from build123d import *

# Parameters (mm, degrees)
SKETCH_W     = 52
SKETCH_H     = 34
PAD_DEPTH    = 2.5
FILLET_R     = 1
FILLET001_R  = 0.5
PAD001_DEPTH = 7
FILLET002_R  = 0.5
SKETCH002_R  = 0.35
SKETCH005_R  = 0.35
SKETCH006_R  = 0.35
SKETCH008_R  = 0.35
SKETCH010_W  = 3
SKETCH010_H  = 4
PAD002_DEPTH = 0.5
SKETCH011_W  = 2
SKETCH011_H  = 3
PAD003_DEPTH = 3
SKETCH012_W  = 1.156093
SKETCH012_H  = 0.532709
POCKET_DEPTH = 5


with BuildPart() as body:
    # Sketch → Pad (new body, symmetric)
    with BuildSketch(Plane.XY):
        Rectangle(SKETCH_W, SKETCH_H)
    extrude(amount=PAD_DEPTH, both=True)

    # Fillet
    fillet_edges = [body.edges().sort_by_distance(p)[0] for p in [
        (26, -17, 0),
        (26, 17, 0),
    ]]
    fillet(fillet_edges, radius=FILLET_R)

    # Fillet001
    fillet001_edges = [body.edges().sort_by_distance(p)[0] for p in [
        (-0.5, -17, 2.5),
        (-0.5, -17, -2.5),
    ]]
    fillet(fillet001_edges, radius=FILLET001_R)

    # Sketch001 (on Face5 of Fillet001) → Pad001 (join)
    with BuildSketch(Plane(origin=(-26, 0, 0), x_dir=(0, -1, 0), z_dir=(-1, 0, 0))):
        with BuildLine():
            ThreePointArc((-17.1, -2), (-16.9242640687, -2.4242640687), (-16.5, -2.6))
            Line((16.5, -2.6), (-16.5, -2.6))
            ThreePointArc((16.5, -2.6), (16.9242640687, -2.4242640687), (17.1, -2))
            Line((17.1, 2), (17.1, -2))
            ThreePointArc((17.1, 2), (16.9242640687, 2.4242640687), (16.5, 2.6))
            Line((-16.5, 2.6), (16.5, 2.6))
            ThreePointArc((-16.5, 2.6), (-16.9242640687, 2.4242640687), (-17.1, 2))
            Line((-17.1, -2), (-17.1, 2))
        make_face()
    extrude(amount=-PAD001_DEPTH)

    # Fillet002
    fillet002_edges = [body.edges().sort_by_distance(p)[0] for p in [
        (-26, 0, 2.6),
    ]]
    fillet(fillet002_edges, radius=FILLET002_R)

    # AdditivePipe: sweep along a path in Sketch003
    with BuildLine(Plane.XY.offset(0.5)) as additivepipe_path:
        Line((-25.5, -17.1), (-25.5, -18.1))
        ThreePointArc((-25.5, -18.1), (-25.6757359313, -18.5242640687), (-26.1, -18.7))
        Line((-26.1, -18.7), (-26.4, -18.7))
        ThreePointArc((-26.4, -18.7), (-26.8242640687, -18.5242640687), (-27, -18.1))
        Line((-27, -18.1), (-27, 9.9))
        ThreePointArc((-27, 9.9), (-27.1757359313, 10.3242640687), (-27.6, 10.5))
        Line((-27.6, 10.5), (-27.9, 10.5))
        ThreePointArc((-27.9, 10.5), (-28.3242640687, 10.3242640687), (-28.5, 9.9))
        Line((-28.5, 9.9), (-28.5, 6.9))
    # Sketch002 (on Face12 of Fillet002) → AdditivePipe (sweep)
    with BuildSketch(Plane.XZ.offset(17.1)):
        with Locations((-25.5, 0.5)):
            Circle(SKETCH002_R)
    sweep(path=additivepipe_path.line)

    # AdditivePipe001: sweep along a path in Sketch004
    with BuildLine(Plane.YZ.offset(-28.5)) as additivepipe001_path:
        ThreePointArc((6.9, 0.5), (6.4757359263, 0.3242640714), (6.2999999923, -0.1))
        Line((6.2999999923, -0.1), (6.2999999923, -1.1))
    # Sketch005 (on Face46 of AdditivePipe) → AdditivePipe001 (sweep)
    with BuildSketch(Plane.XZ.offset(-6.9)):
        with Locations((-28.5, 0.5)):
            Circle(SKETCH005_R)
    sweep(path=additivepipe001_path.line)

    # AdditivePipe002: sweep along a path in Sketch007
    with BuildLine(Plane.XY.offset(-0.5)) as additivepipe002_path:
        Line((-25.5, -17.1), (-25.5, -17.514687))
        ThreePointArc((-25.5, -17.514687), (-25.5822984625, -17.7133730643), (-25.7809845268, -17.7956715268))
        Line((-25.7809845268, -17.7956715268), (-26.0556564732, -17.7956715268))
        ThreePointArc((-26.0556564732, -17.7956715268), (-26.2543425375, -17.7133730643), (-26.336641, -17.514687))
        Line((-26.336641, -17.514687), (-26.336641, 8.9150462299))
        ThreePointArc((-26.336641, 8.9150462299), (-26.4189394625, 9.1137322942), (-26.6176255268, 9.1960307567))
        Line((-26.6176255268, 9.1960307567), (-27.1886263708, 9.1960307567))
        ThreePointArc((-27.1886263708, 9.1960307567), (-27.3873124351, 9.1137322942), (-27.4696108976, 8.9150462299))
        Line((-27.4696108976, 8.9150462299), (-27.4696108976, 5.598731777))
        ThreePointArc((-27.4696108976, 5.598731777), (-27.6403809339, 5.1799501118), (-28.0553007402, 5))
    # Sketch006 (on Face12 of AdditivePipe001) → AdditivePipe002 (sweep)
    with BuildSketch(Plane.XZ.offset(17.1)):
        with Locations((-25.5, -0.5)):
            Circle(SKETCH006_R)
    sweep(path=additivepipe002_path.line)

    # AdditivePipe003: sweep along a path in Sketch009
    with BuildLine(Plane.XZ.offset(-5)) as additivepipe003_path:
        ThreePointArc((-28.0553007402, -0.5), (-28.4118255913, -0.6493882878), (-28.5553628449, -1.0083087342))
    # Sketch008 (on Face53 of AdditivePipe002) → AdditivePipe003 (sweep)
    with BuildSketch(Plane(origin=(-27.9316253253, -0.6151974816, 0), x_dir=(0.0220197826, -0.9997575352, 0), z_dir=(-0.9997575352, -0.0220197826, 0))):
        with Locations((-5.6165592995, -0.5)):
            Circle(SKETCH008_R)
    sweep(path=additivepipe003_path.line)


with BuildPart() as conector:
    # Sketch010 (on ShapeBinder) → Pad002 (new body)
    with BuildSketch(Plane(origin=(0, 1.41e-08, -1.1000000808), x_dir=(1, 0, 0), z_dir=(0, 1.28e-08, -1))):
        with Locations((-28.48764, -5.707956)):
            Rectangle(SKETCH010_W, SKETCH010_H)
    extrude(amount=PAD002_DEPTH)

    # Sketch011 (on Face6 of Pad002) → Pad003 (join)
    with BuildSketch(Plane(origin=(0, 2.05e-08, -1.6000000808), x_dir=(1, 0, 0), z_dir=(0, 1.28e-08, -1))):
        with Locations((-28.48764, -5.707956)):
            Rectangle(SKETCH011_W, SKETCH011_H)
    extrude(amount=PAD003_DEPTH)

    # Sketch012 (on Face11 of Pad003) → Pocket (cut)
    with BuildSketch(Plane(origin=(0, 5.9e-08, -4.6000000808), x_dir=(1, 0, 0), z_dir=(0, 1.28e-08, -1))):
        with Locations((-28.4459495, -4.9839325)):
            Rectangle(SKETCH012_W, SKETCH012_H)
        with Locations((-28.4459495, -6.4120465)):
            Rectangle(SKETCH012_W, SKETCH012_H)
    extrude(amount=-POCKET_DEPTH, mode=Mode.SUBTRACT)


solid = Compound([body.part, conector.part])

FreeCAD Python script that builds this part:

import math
import FreeCAD as App
import Part
import Sketcher

V = App.Vector


def edges_at(feature, points):
    """Names of the edges that pass closest to the given points."""
    edges = feature.Shape.Edges
    near = lambda p: min(range(len(edges)), key=lambda i: edges[i].distToShape(Part.Vertex(*p))[0])
    return sorted({f"Edge{near(p) + 1}" for p in points})


def add_polygon(sketch, points):
    """Adds a closed chain of lines whose ends are joined by coincident constraints."""
    first, n = sketch.GeometryCount, len(points)
    for a, b in zip(points, points[1:] + points[:1]):
        sketch.addGeometry(Part.LineSegment(App.Vector(*a, 0), App.Vector(*b, 0)), False)
    for i in range(n):
        sketch.addConstraint(Sketcher.Constraint("Coincident", first + i, 2, first + (i + 1) % n, 1))

doc = App.newDocument("Part")
params = doc.addObject("Spreadsheet::Sheet", "Params")
for row, (alias, value) in enumerate([
    ("sketch1_width", "52 mm"),
    ("sketch1_height", "34 mm"),
    ("pad1_length", "5 mm"),
    ("fillet_radius", "1 mm"),
    ("fillet2_radius", "0.5 mm"),
    ("sketch2_radius", "0.6 mm"),
    ("sketch2_width", "33 mm"),
    ("sketch2_height", "4 mm"),
    ("pad2_length", "7 mm"),
    ("fillet3_radius", "0.5 mm"),
    ("sketch3_diameter", "0.7 mm"),
    ("sketch4_radius", "0.6 mm"),
    ("sketch4_height", "1 mm"),
    ("sketch4_height2", "28 mm"),
    ("sketch4_height3", "3 mm"),
    ("sketch4_width", "0.3 mm"),
    ("sketch5_diameter", "0.7 mm"),
    ("sketch6_radius", "0.6 mm"),
    ("sketch6_height", "1 mm"),
    ("sketch7_diameter", "0.7 mm"),
    ("sketch9_diameter", "0.7 mm"),
    ("sketch11_width", "3 mm"),
    ("sketch11_height", "4 mm"),
    ("pad3_length", "0.5 mm"),
    ("sketch12_width", "2 mm"),
    ("sketch12_height", "3 mm"),
    ("pad4_length", "3 mm"),
    ("pocket1_length", "5 mm"),
], start=1):
    params.set(f"A{row}", alias)
    params.set(f"B{row}", "=" + value)
    params.setAlias(f"B{row}", alias)

body = doc.addObject("PartDesign::Body", "Body")

# Sketch on XY plane
sketch1 = body.newObject("Sketcher::SketchObject", "Sketch")
sketch1.AttachmentSupport = (doc.getObject("XY_Plane"), [""])
sketch1.MapMode = "FlatFace"
add_polygon(sketch1, [(-26, 17), (-26, -17), (26, -17), (26, 17)])  # lines 0-3
sketch1.addConstraint(Sketcher.Constraint("Vertical", 0))
sketch1.addConstraint(Sketcher.Constraint("Horizontal", 1))
sketch1.addConstraint(Sketcher.Constraint("Vertical", 2))
sketch1.addConstraint(Sketcher.Constraint("Horizontal", 3))
sketch1.addConstraint(Sketcher.Constraint("Symmetric", 0, 2, 2, 2, -1, 1))
sketch1.addConstraint(Sketcher.Constraint("DistanceX", 1, 1, 1, 2, 52.0))
sketch1.addConstraint(Sketcher.Constraint("DistanceY", 0, 2, 0, 1, 34.0))
sketch1.setExpression("Constraints[9]", "Params.sketch1_width")
sketch1.setExpression("Constraints[10]", "Params.sketch1_height")
pad1 = body.newObject("PartDesign::Pad", "Pad")
pad1.Profile = sketch1
pad1.setExpression("Length", "Params.pad1_length")
pad1.Midplane = True
doc.recompute()

fillet = body.newObject("PartDesign::Fillet", "Fillet")
fillet.Base = (pad1, edges_at(pad1, [(26, -17, 0), (26, 17, 0)]))
fillet.setExpression("Radius", "Params.fillet_radius")
doc.recompute()

fillet2 = body.newObject("PartDesign::Fillet", "Fillet001")
fillet2.Base = (fillet, edges_at(fillet, [(-0.5, -17, 2.5), (-0.5, -17, -2.5)]))
fillet2.setExpression("Radius", "Params.fillet2_radius")

# Sketch on YZ plane
sketch2 = body.newObject("Sketcher::SketchObject", "Sketch001")
sketch2.AttachmentSupport = (doc.getObject("YZ_Plane"), [""])
sketch2.MapMode = "FlatFace"
sketch2.AttachmentOffset = App.Placement(V(0, 0, -26), App.Rotation())
sketch2.addGeometry(Part.ArcOfCircle(Part.Circle(V(16.5, -2, 0), V(0, 0, 1), 0.6), math.radians(-90), math.radians(0)), False)
sketch2.addGeometry(Part.LineSegment(V(16.5, -2.6, 0), V(-16.5, -2.6, 0)), False)
sketch2.addGeometry(Part.ArcOfCircle(Part.Circle(V(-16.5, -2, 0), V(0, 0, 1), 0.6), math.radians(180), math.radians(270)), False)
sketch2.addGeometry(Part.LineSegment(V(-17.1, -2, 0), V(-17.1, 2, 0)), False)
sketch2.addGeometry(Part.ArcOfCircle(Part.Circle(V(-16.5, 2, 0), V(0, 0, 1), 0.6), math.radians(90), math.radians(180)), False)
sketch2.addGeometry(Part.LineSegment(V(-16.5, 2.6, 0), V(16.5, 2.6, 0)), False)
sketch2.addGeometry(Part.ArcOfCircle(Part.Circle(V(16.5, 2, 0), V(0, 0, 1), 0.6), math.radians(0), math.radians(90)), False)
sketch2.addGeometry(Part.LineSegment(V(17.1, 2, 0), V(17.1, -2, 0)), False)
sketch2.addConstraint(Sketcher.Constraint("Tangent", 0, 1, 1, 1))
sketch2.addConstraint(Sketcher.Constraint("Tangent", 1, 2, 2, 2))
sketch2.addConstraint(Sketcher.Constraint("Tangent", 2, 1, 3, 1))
sketch2.addConstraint(Sketcher.Constraint("Tangent", 3, 2, 4, 2))
sketch2.addConstraint(Sketcher.Constraint("Tangent", 4, 1, 5, 1))
sketch2.addConstraint(Sketcher.Constraint("Tangent", 5, 2, 6, 2))
sketch2.addConstraint(Sketcher.Constraint("Tangent", 6, 1, 7, 1))
sketch2.addConstraint(Sketcher.Constraint("Tangent", 7, 2, 0, 2))
sketch2.addConstraint(Sketcher.Constraint("Horizontal", 1))
sketch2.addConstraint(Sketcher.Constraint("Vertical", 3))
sketch2.addConstraint(Sketcher.Constraint("Horizontal", 5))
sketch2.addConstraint(Sketcher.Constraint("Vertical", 7))
sketch2.addConstraint(Sketcher.Constraint("Equal", 0, 2))
sketch2.addConstraint(Sketcher.Constraint("Equal", 2, 4))
sketch2.addConstraint(Sketcher.Constraint("Equal", 4, 6))
sketch2.addConstraint(Sketcher.Constraint("Symmetric", 0, 3, 4, 3, -1, 1))
sketch2.addConstraint(Sketcher.Constraint("Radius", 0, 0.6))
sketch2.addConstraint(Sketcher.Constraint("DistanceX", 1, 2, 1, 1, 33.0))
sketch2.addConstraint(Sketcher.Constraint("DistanceY", 3, 1, 3, 2, 4.0))
sketch2.setExpression("Constraints[16]", "Params.sketch2_radius")
sketch2.setExpression("Constraints[17]", "Params.sketch2_width")
sketch2.setExpression("Constraints[18]", "Params.sketch2_height")
pad2 = body.newObject("PartDesign::Pad", "Pad001")
pad2.Profile = sketch2
pad2.setExpression("Length", "Params.pad2_length")
doc.recompute()

fillet3 = body.newObject("PartDesign::Fillet", "Fillet002")
fillet3.Base = (pad2, edges_at(pad2, [(-26, 0, 2.6)]))
fillet3.setExpression("Radius", "Params.fillet3_radius")

# Sketch on XZ plane
sketch3 = body.newObject("Sketcher::SketchObject", "Sketch002")
sketch3.AttachmentSupport = (doc.getObject("XZ_Plane"), [""])
sketch3.MapMode = "FlatFace"
sketch3.AttachmentOffset = App.Placement(V(0, 0, 17.1), App.Rotation())
sketch3.addGeometry(Part.Circle(V(-25.5, 0.5, 0), V(0, 0, 1), 0.35), False)
sketch3.addConstraint(Sketcher.Constraint("Diameter", 0, 0.7))
sketch3.addConstraint(Sketcher.Constraint("DistanceX", 0, 3, -1, 1, 25.5))
sketch3.addConstraint(Sketcher.Constraint("DistanceY", -1, 1, 0, 3, 0.5))
sketch3.setExpression("Constraints[0]", "Params.sketch3_diameter")

# Sketch on XY plane
sketch4 = body.newObject("Sketcher::SketchObject", "Sketch003")
sketch4.AttachmentSupport = (doc.getObject("XY_Plane"), [""])
sketch4.MapMode = "FlatFace"
sketch4.AttachmentOffset = App.Placement(V(0, 0, 0.5), App.Rotation())
sketch4.addGeometry(Part.LineSegment(V(-25.5, -17.1, 0), V(-25.5, -18.1, 0)), False)
sketch4.addGeometry(Part.ArcOfCircle(Part.Circle(V(-26.1, -18.1, 0), V(0, 0, 1), 0.6), math.radians(-90), math.radians(0)), False)
sketch4.addGeometry(Part.LineSegment(V(-26.1, -18.7, 0), V(-26.4, -18.7, 0)), False)
sketch4.addGeometry(Part.ArcOfCircle(Part.Circle(V(-26.4, -18.1, 0), V(0, 0, 1), 0.6), math.radians(180), math.radians(270)), False)
sketch4.addGeometry(Part.LineSegment(V(-27, -18.1, 0), V(-27, 9.9, 0)), False)
sketch4.addGeometry(Part.ArcOfCircle(Part.Circle(V(-27.6, 9.9, 0), V(0, 0, 1), 0.6), math.radians(0), math.radians(90)), False)
sketch4.addGeometry(Part.LineSegment(V(-27.6, 10.5, 0), V(-27.9, 10.5, 0)), False)
sketch4.addGeometry(Part.ArcOfCircle(Part.Circle(V(-27.9, 9.9, 0), V(0, 0, 1), 0.6), math.radians(90), math.radians(180)), False)
sketch4.addGeometry(Part.LineSegment(V(-28.5, 9.9, 0), V(-28.5, 6.9, 0)), False)
sketch4.addConstraint(Sketcher.Constraint("Tangent", 0, 2, 1, 2))
sketch4.addConstraint(Sketcher.Constraint("Tangent", 1, 1, 2, 1))
sketch4.addConstraint(Sketcher.Constraint("Tangent", 2, 2, 3, 2))
sketch4.addConstraint(Sketcher.Constraint("Tangent", 3, 1, 4, 1))
sketch4.addConstraint(Sketcher.Constraint("Tangent", 4, 2, 5, 1))
sketch4.addConstraint(Sketcher.Constraint("Tangent", 5, 2, 6, 1))
sketch4.addConstraint(Sketcher.Constraint("Tangent", 6, 2, 7, 1))
sketch4.addConstraint(Sketcher.Constraint("Tangent", 7, 2, 8, 1))
sketch4.addConstraint(Sketcher.Constraint("Vertical", 0))
sketch4.addConstraint(Sketcher.Constraint("Horizontal", 2))
sketch4.addConstraint(Sketcher.Constraint("Vertical", 4))
sketch4.addConstraint(Sketcher.Constraint("Horizontal", 6))
sketch4.addConstraint(Sketcher.Constraint("Vertical", 8))
sketch4.addConstraint(Sketcher.Constraint("Equal", 1, 3))
sketch4.addConstraint(Sketcher.Constraint("Equal", 3, 5))
sketch4.addConstraint(Sketcher.Constraint("Equal", 5, 7))
sketch4.addConstraint(Sketcher.Constraint("Equal", 2, 6))
sketch4.addConstraint(Sketcher.Constraint("Radius", 1, 0.6))
sketch4.addConstraint(Sketcher.Constraint("DistanceY", 0, 2, 0, 1, 1.0))
sketch4.addConstraint(Sketcher.Constraint("DistanceY", 4, 1, 4, 2, 28.0))
sketch4.addConstraint(Sketcher.Constraint("DistanceY", 8, 2, 8, 1, 3.0))
sketch4.addConstraint(Sketcher.Constraint("DistanceX", 2, 2, 2, 1, 0.3))
sketch4.addConstraint(Sketcher.Constraint("DistanceX", 3, 1, -1, 1, 27.0))
sketch4.addConstraint(Sketcher.Constraint("DistanceY", 1, 3, -1, 1, 18.1))
sketch4.setExpression("Constraints[17]", "Params.sketch4_radius")
sketch4.setExpression("Constraints[18]", "Params.sketch4_height")
sketch4.setExpression("Constraints[19]", "Params.sketch4_height2")
sketch4.setExpression("Constraints[20]", "Params.sketch4_height3")
sketch4.setExpression("Constraints[21]", "Params.sketch4_width")
doc.recompute()

additivepipe = body.newObject("PartDesign::AdditivePipe", "AdditivePipe")
additivepipe.Profile = sketch3
additivepipe.Spine = (sketch4, ["Edge1", "Edge2", "Edge3", "Edge4", "Edge5", "Edge6", "Edge7", "Edge8", "Edge9"])

# Sketch on XZ plane
sketch5 = body.newObject("Sketcher::SketchObject", "Sketch004")
sketch5.AttachmentSupport = (doc.getObject("XZ_Plane"), [""])
sketch5.MapMode = "FlatFace"
sketch5.AttachmentOffset = App.Placement(V(0, 0, -6.9), App.Rotation())
sketch5.addGeometry(Part.Circle(V(-28.5, 0.5, 0), V(0, 0, 1), 0.35), False)
sketch5.addConstraint(Sketcher.Constraint("Diameter", 0, 0.7))
sketch5.addConstraint(Sketcher.Constraint("DistanceX", 0, 3, -1, 1, 28.5))
sketch5.addConstraint(Sketcher.Constraint("DistanceY", -1, 1, 0, 3, 0.5))
sketch5.setExpression("Constraints[0]", "Params.sketch5_diameter")

# Sketch on YZ plane
sketch6 = body.newObject("Sketcher::SketchObject", "Sketch005")
sketch6.AttachmentSupport = (doc.getObject("YZ_Plane"), [""])
sketch6.MapMode = "FlatFace"
sketch6.AttachmentOffset = App.Placement(V(0, 0, -28.5), App.Rotation())
sketch6.addGeometry(Part.ArcOfCircle(Part.Circle(V(6.9, -0.1, 0), V(0, 0, 1), 0.6), math.radians(90), math.radians(180)), False)
sketch6.addGeometry(Part.LineSegment(V(6.3, -0.1, 0), V(6.3, -1.1, 0)), False)
sketch6.addConstraint(Sketcher.Constraint("Tangent", 0, 2, 1, 1))
sketch6.addConstraint(Sketcher.Constraint("Vertical", 1))
sketch6.addConstraint(Sketcher.Constraint("Radius", 0, 0.6))
sketch6.addConstraint(Sketcher.Constraint("DistanceY", 1, 2, 1, 1, 1.0))
sketch6.addConstraint(Sketcher.Constraint("DistanceX", -1, 1, 0, 3, 6.9))
sketch6.addConstraint(Sketcher.Constraint("DistanceY", 0, 3, -1, 1, 0.1))
sketch6.addConstraint(Sketcher.Constraint("DistanceX", -1, 1, 0, 1, 6.9))
sketch6.setExpression("Constraints[2]", "Params.sketch6_radius")
sketch6.setExpression("Constraints[3]", "Params.sketch6_height")
doc.recompute()

additivepipe2 = body.newObject("PartDesign::AdditivePipe", "AdditivePipe001")
additivepipe2.Profile = sketch5
additivepipe2.Spine = (sketch6, ["Edge1", "Edge2"])

# Sketch on XZ plane
sketch7 = body.newObject("Sketcher::SketchObject", "Sketch006")
sketch7.AttachmentSupport = (doc.getObject("XZ_Plane"), [""])
sketch7.MapMode = "FlatFace"
sketch7.AttachmentOffset = App.Placement(V(0, 0, 17.1), App.Rotation())
sketch7.addGeometry(Part.Circle(V(-25.5, -0.5, 0), V(0, 0, 1), 0.35), False)
sketch7.addConstraint(Sketcher.Constraint("Diameter", 0, 0.7))
sketch7.addConstraint(Sketcher.Constraint("DistanceX", 0, 3, -1, 1, 25.5))
sketch7.addConstraint(Sketcher.Constraint("DistanceY", 0, 3, -1, 1, 0.5))
sketch7.setExpression("Constraints[0]", "Params.sketch7_diameter")

# Sketch on XY plane
sketch8 = body.newObject("Sketcher::SketchObject", "Sketch007")
sketch8.AttachmentSupport = (doc.getObject("XY_Plane"), [""])
sketch8.MapMode = "FlatFace"
sketch8.AttachmentOffset = App.Placement(V(0, 0, -0.5), App.Rotation())
sketch8.addGeometry(Part.LineSegment(V(-25.5, -17.1, 0), V(-25.5, -17.51, 0)), False)
sketch8.addGeometry(Part.ArcOfCircle(Part.Circle(V(-25.78, -17.51, 0), V(0, 0, 1), 0.28), math.radians(-90), math.radians(0)), False)
sketch8.addGeometry(Part.LineSegment(V(-25.78, -17.8, 0), V(-26.06, -17.8, 0)), False)
sketch8.addGeometry(Part.ArcOfCircle(Part.Circle(V(-26.06, -17.51, 0), V(0, 0, 1), 0.28), math.radians(180), math.radians(270)), False)
sketch8.addGeometry(Part.LineSegment(V(-26.34, -17.51, 0), V(-26.34, 8.92, 0)), False)
sketch8.addGeometry(Part.ArcOfCircle(Part.Circle(V(-26.62, 8.92, 0), V(0, 0, 1), 0.28), math.radians(0), math.radians(90)), False)
sketch8.addGeometry(Part.LineSegment(V(-26.62, 9.2, 0), V(-27.19, 9.2, 0)), False)
sketch8.addGeometry(Part.ArcOfCircle(Part.Circle(V(-27.19, 8.92, 0), V(0, 0, 1), 0.28), math.radians(90), math.radians(180)), False)
sketch8.addGeometry(Part.LineSegment(V(-27.47, 8.92, 0), V(-27.47, 5.6, 0)), False)
sketch8.addGeometry(Part.ArcOfCircle(Part.Circle(V(-28.07, 5.6, 0), V(0, 0, 1), 0.6), math.radians(-89), math.radians(0)), False)
sketch8.addConstraint(Sketcher.Constraint("Tangent", 0, 2, 1, 2))
sketch8.addConstraint(Sketcher.Constraint("Tangent", 1, 1, 2, 1))
sketch8.addConstraint(Sketcher.Constraint("Tangent", 2, 2, 3, 2))
sketch8.addConstraint(Sketcher.Constraint("Tangent", 3, 1, 4, 1))
sketch8.addConstraint(Sketcher.Constraint("Tangent", 4, 2, 5, 1))
sketch8.addConstraint(Sketcher.Constraint("Tangent", 5, 2, 6, 1))
sketch8.addConstraint(Sketcher.Constraint("Tangent", 6, 2, 7, 1))
sketch8.addConstraint(Sketcher.Constraint("Tangent", 7, 2, 8, 1))
sketch8.addConstraint(Sketcher.Constraint("Tangent", 8, 2, 9, 2))
sketch8.addConstraint(Sketcher.Constraint("Vertical", 0))
sketch8.addConstraint(Sketcher.Constraint("Horizontal", 2))
sketch8.addConstraint(Sketcher.Constraint("Vertical", 4))
sketch8.addConstraint(Sketcher.Constraint("Horizontal", 6))
sketch8.addConstraint(Sketcher.Constraint("Vertical", 8))
sketch8.addConstraint(Sketcher.Constraint("Equal", 1, 3))
sketch8.addConstraint(Sketcher.Constraint("Equal", 3, 5))
sketch8.addConstraint(Sketcher.Constraint("Equal", 5, 7))
sketch8.addConstraint(Sketcher.Constraint("DistanceY", -1, 1, 9, 1, 5.0))
sketch8.addConstraint(Sketcher.Constraint("DistanceX", 0, 1, -1, 1, 25.5))
sketch8.addConstraint(Sketcher.Constraint("DistanceY", 0, 1, -1, 1, 17.1))
sketch8.addConstraint(Sketcher.Constraint("DistanceX", 6, 2, 6, 1, 0.571001))
sketch8.addConstraint(Sketcher.Constraint("Radius", 1, 0.280985))
sketch8.addConstraint(Sketcher.Constraint("Radius", 9, 0.598877))
sketch8.addConstraint(Sketcher.Constraint("DistanceX", 2, 2, 2, 1, 0.274672))
sketch8.addConstraint(Sketcher.Constraint("DistanceX", 9, 1, -1, 1, 28.055301))
sketch8.addConstraint(Sketcher.Constraint("DistanceY", 9, 3, 5, 2, 3.597299))
sketch8.addConstraint(Sketcher.Constraint("DistanceY", 0, 2, 0, 1, 0.414687))
doc.recompute()

additivepipe3 = body.newObject("PartDesign::AdditivePipe", "AdditivePipe002")
additivepipe3.Profile = sketch7
additivepipe3.Spine = (sketch8, ["Edge1", "Edge2", "Edge3", "Edge4", "Edge5", "Edge6", "Edge7", "Edge8", "Edge9", "Edge10"])

# Sketch on an angled plane
sketch9 = body.newObject("Sketcher::SketchObject", "Sketch008")
sketch9.Placement = App.Placement(V(-27.931625, -0.615197, 0), App.Rotation(V(0.022019783, -0.999757535, 0), V(0, 0, 1), V(-0.999757535, -0.022019783, 0), "ZXY"))
sketch9.addGeometry(Part.Circle(V(-5.62, -0.5, 0), V(0, 0, 1), 0.35), False)
sketch9.addConstraint(Sketcher.Constraint("Diameter", 0, 0.7))
sketch9.addConstraint(Sketcher.Constraint("DistanceY", 0, 3, -1, 1, 0.5))
sketch9.addConstraint(Sketcher.Constraint("DistanceX", 0, 3, -1, 1, 5.616559))
sketch9.setExpression("Constraints[0]", "Params.sketch9_diameter")

# Sketch on XZ plane
sketch10 = body.newObject("Sketcher::SketchObject", "Sketch009")
sketch10.AttachmentSupport = (doc.getObject("XZ_Plane"), [""])
sketch10.MapMode = "FlatFace"
sketch10.AttachmentOffset = App.Placement(V(0, 0, -5), App.Rotation())
sketch10.addGeometry(Part.ArcOfCircle(Part.Circle(V(-28.1, -1, 0), V(0, 0, 1), 0.5), math.radians(90), math.radians(181)), False)
sketch10.addConstraint(Sketcher.Constraint("DistanceY", 0, 1, -1, 1, 0.5))
sketch10.addConstraint(Sketcher.Constraint("Radius", 0, 0.500129))
sketch10.addConstraint(Sketcher.Constraint("DistanceX", 0, 3, -1, 1, 28.055301))
sketch10.addConstraint(Sketcher.Constraint("DistanceX", 0, 1, -1, 1, 28.055301))
sketch10.addConstraint(Sketcher.Constraint("DistanceY", 0, 2, -1, 1, 1.008309))
doc.recompute()

additivepipe4 = body.newObject("PartDesign::AdditivePipe", "AdditivePipe003")
additivepipe4.Profile = sketch9
additivepipe4.Spine = (sketch10, ["Edge1"])
body2 = doc.addObject("PartDesign::Body", "Body001")

# Sketch on XY plane
sketch11 = body2.newObject("Sketcher::SketchObject", "Sketch010")
sketch11.AttachmentSupport = (doc.getObject("XY_Plane001"), [""])
sketch11.MapMode = "FlatFace"
sketch11.AttachmentOffset = App.Placement(V(0, 0, -1.1), App.Rotation())
add_polygon(sketch11, [(-30, 3.7), (-30, 7.7), (-27, 7.7), (-27, 3.7)])  # lines 0-3
sketch11.addConstraint(Sketcher.Constraint("Vertical", 0))
sketch11.addConstraint(Sketcher.Constraint("Horizontal", 1))
sketch11.addConstraint(Sketcher.Constraint("Vertical", 2))
sketch11.addConstraint(Sketcher.Constraint("Horizontal", 3))
sketch11.addConstraint(Sketcher.Constraint("DistanceX", 1, 1, 1, 2, 3.0))
sketch11.addConstraint(Sketcher.Constraint("DistanceY", 0, 1, 0, 2, 4.0))
sketch11.addConstraint(Sketcher.Constraint("DistanceX", 0, 2, -1, 1, 29.98764))
sketch11.addConstraint(Sketcher.Constraint("DistanceY", -1, 1, 0, 2, 7.707956))
sketch11.setExpression("Constraints[8]", "Params.sketch11_width")
sketch11.setExpression("Constraints[9]", "Params.sketch11_height")
pad3 = body2.newObject("PartDesign::Pad", "Pad002")
pad3.Profile = sketch11
pad3.setExpression("Length", "Params.pad3_length")
pad3.Reversed = True

# Sketch on XY plane
sketch12 = body2.newObject("Sketcher::SketchObject", "Sketch011")
sketch12.AttachmentSupport = (doc.getObject("XY_Plane001"), [""])
sketch12.MapMode = "FlatFace"
sketch12.AttachmentOffset = App.Placement(V(0, 0, -1.6), App.Rotation())
add_polygon(sketch12, [(-29.5, 4.2), (-29.5, 7.2), (-27.5, 7.2), (-27.5, 4.2)])  # lines 0-3
sketch12.addConstraint(Sketcher.Constraint("Vertical", 0))
sketch12.addConstraint(Sketcher.Constraint("Horizontal", 1))
sketch12.addConstraint(Sketcher.Constraint("Vertical", 2))
sketch12.addConstraint(Sketcher.Constraint("Horizontal", 3))
sketch12.addConstraint(Sketcher.Constraint("DistanceX", 1, 1, 1, 2, 2.0))
sketch12.addConstraint(Sketcher.Constraint("DistanceY", 0, 1, 0, 2, 3.0))
sketch12.addConstraint(Sketcher.Constraint("DistanceX", 0, 2, -1, 1, 29.48764))
sketch12.addConstraint(Sketcher.Constraint("DistanceY", -1, 1, 0, 2, 7.207956))
sketch12.setExpression("Constraints[8]", "Params.sketch12_width")
sketch12.setExpression("Constraints[9]", "Params.sketch12_height")
pad4 = body2.newObject("PartDesign::Pad", "Pad003")
pad4.Profile = sketch12
pad4.setExpression("Length", "Params.pad4_length")
pad4.Reversed = True

# Sketch on XY plane
sketch13 = body2.newObject("Sketcher::SketchObject", "Sketch012")
sketch13.AttachmentSupport = (doc.getObject("XY_Plane001"), [""])
sketch13.MapMode = "FlatFace"
sketch13.AttachmentOffset = App.Placement(V(0, 0, -4.6), App.Rotation())
add_polygon(sketch13, [(-29, 4.7), (-29, 5.3), (-27.9, 5.3), (-27.9, 4.7)])  # lines 0-3
add_polygon(sketch13, [(-29, 6.1), (-29, 6.7), (-27.9, 6.7), (-27.9, 6.1)])  # lines 4-7
sketch13.addConstraint(Sketcher.Constraint("Vertical", 0))
sketch13.addConstraint(Sketcher.Constraint("Horizontal", 1))
sketch13.addConstraint(Sketcher.Constraint("Vertical", 2))
sketch13.addConstraint(Sketcher.Constraint("Horizontal", 3))
sketch13.addConstraint(Sketcher.Constraint("Vertical", 4))
sketch13.addConstraint(Sketcher.Constraint("Horizontal", 5))
sketch13.addConstraint(Sketcher.Constraint("Vertical", 6))
sketch13.addConstraint(Sketcher.Constraint("Horizontal", 7))
sketch13.addConstraint(Sketcher.Constraint("Vertical", 3, 2, 4, 2))
sketch13.addConstraint(Sketcher.Constraint("Vertical", 2, 2, 5, 2))
sketch13.addConstraint(Sketcher.Constraint("Equal", 2, 4))
sketch13.addConstraint(Sketcher.Constraint("DistanceY", 0, 1, 0, 2, 0.532709))
sketch13.addConstraint(Sketcher.Constraint("DistanceY", -1, 1, 4, 2, 6.678401))
sketch13.addConstraint(Sketcher.Constraint("DistanceX", 1, 1, 1, 2, 1.156093))
sketch13.addConstraint(Sketcher.Constraint("DistanceY", -1, 1, 2, 2, 4.717578))
sketch13.addConstraint(Sketcher.Constraint("DistanceX", 0, 2, -1, 1, 29.023996))
pocket1 = body2.newObject("PartDesign::Pocket", "Pocket")
pocket1.Profile = sketch13
pocket1.setExpression("Length", "Params.pocket1_length")
pocket1.Reversed = True

doc.recompute()
